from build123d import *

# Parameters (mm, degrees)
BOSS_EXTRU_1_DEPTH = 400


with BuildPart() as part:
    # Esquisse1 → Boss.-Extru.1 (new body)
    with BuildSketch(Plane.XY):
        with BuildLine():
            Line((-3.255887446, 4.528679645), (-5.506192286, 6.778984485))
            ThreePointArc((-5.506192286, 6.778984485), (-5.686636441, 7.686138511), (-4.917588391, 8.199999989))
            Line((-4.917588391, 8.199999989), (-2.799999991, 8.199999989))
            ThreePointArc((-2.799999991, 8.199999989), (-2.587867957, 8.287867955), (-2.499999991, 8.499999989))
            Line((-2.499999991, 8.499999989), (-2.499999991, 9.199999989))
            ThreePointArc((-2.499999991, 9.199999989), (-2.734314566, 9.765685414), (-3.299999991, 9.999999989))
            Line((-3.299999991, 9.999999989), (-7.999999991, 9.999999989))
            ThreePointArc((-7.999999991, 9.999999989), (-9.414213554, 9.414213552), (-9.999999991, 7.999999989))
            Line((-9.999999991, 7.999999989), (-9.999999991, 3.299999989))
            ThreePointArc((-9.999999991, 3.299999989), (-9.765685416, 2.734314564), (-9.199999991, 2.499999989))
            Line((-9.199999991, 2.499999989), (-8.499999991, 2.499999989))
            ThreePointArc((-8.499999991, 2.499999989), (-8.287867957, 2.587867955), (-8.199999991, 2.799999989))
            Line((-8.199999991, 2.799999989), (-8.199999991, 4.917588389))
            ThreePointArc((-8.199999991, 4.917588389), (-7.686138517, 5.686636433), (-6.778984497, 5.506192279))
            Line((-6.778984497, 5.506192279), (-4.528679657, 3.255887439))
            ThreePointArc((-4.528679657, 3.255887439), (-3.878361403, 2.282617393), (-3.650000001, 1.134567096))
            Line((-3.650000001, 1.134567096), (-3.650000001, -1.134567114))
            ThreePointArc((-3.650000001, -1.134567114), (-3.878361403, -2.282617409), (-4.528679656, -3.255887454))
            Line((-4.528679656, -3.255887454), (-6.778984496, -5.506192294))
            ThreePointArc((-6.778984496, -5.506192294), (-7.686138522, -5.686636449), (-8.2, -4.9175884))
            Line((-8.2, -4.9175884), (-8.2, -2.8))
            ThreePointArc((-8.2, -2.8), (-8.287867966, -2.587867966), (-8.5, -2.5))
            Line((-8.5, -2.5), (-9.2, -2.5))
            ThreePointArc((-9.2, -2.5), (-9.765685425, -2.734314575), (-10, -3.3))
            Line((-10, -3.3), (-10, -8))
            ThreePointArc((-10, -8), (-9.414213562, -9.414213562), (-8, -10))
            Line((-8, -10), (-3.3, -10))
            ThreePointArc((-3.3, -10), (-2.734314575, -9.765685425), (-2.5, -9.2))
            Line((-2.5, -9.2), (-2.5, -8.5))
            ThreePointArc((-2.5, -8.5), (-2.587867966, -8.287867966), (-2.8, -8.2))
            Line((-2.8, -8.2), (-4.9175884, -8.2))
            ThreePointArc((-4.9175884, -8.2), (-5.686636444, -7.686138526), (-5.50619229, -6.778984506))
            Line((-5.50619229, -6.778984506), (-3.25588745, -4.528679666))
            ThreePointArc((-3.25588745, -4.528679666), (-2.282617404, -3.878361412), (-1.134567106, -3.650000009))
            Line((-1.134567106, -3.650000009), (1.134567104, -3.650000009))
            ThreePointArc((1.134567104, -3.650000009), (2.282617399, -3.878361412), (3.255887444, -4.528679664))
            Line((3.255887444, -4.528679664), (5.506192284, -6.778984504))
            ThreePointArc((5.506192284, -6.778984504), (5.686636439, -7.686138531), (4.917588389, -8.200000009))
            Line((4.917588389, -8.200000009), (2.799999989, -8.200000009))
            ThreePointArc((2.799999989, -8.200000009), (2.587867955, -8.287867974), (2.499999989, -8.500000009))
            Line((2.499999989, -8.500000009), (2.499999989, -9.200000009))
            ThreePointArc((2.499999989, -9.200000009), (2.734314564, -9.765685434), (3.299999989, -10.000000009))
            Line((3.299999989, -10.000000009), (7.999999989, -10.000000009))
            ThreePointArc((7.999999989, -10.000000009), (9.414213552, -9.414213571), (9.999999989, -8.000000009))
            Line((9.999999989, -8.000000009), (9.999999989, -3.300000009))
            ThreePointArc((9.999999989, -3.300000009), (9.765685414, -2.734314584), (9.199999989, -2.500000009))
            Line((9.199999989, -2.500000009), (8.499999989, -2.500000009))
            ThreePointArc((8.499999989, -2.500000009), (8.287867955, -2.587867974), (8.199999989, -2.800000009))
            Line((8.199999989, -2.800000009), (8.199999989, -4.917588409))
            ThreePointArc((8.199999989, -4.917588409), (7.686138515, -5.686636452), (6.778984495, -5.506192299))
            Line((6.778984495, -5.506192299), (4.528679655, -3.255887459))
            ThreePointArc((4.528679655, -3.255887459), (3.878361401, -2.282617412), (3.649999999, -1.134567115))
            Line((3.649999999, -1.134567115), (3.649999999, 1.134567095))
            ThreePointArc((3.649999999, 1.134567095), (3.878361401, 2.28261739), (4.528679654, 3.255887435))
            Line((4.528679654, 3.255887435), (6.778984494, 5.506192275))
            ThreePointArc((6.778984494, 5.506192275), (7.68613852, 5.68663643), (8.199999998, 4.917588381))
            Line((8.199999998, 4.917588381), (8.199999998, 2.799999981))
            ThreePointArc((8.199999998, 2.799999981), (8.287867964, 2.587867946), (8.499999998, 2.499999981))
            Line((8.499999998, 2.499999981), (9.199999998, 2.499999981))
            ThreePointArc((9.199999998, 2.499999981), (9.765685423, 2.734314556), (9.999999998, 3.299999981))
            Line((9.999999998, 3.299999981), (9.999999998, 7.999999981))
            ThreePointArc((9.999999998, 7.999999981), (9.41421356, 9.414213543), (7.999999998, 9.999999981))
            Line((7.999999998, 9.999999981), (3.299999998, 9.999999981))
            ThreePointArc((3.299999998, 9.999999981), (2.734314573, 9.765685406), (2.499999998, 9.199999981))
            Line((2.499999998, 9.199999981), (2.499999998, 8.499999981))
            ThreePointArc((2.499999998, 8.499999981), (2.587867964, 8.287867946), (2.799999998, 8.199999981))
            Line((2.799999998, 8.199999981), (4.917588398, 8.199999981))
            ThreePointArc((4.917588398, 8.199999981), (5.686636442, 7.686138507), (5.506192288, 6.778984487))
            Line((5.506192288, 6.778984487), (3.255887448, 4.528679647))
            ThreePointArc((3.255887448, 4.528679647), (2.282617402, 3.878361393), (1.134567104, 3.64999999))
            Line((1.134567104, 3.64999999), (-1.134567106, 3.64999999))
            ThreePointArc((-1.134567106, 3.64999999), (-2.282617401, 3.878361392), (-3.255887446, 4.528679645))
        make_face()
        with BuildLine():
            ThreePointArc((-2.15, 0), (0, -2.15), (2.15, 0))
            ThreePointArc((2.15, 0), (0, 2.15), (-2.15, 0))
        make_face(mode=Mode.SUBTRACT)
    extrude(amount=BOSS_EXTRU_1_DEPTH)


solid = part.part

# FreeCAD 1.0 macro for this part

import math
import FreeCAD as App
import Part
import Sketcher
Q = App.Units.Quantity

doc = App.newDocument("Part")
params = doc.addObject("Spreadsheet::Sheet", "Params")
for row, (alias, value) in enumerate([
    ("sketch1_radius", "2 mm"),
    ("sketch1_radius2", "3 mm"),
    ("sketch1_diameter", "4.3 mm"),
    ("sketch1_radius3", "0.3 mm"),
    ("sketch1_radius4", "0.8 mm"),
    ("pad1_length", "400 mm"),
], start=1):
    params.set(f"A{row}", alias)
    params.set(f"B{row}", "=" + value)
    params.setAlias(f"B{row}", alias)

body = doc.addObject("PartDesign::Body", "Body")

# Sketch on XY plane
sketch1 = body.newObject("Sketcher::SketchObject", "Sketch")
sketch1.AttachmentSupport = (doc.getObject("XY_Plane"), [""])
sketch1.MapMode = "FlatFace"
sketch1.addGeometry([
    Part.LineSegment(App.Vector(-3.26, 4.53, 0), App.Vector(-5.51, 6.78, 0)),  # 0
    Part.ArcOfCircle(Part.Circle(App.Vector(-4.92, 7.37, 0), App.Vector(0, 0, 1), 0.83), math.radians(90), math.radians(225)),  # 1
    Part.LineSegment(App.Vector(-4.92, 8.2, 0), App.Vector(-2.8, 8.2, 0)),  # 2
    Part.ArcOfCircle(Part.Circle(App.Vector(-2.8, 8.5, 0), App.Vector(0, 0, 1), 0.3), math.radians(-90), math.radians(0)),  # 3
    Part.LineSegment(App.Vector(-2.5, 8.5, 0), App.Vector(-2.5, 9.2, 0)),  # 4
    Part.ArcOfCircle(Part.Circle(App.Vector(-3.3, 9.2, 0), App.Vector(0, 0, 1), 0.8), math.radians(0), math.radians(90)),  # 5
    Part.LineSegment(App.Vector(-3.3, 10, 0), App.Vector(-8, 10, 0)),  # 6
    Part.ArcOfCircle(Part.Circle(App.Vector(-8, 8, 0), App.Vector(0, 0, 1), 2), math.radians(90), math.radians(180)),  # 7
    Part.LineSegment(App.Vector(-10, 8, 0), App.Vector(-10, 3.3, 0)),  # 8
    Part.ArcOfCircle(Part.Circle(App.Vector(-9.2, 3.3, 0), App.Vector(0, 0, 1), 0.8), math.radians(180), math.radians(270)),  # 9
    Part.LineSegment(App.Vector(-9.2, 2.5, 0), App.Vector(-8.5, 2.5, 0)),  # 10
    Part.ArcOfCircle(Part.Circle(App.Vector(-8.5, 2.8, 0), App.Vector(0, 0, 1), 0.3), math.radians(-90), math.radians(0)),  # 11
    Part.LineSegment(App.Vector(-8.2, 2.8, 0), App.Vector(-8.2, 4.92, 0)),  # 12
    Part.ArcOfCircle(Part.Circle(App.Vector(-7.37, 4.92, 0), App.Vector(0, 0, 1), 0.83), math.radians(45), math.radians(180)),  # 13
    Part.LineSegment(App.Vector(-6.78, 5.51, 0), App.Vector(-4.53, 3.26, 0)),  # 14
    Part.ArcOfCircle(Part.Circle(App.Vector(-6.65, 1.13, 0), App.Vector(0, 0, 1), 3), math.radians(0), math.radians(45)),  # 15
    Part.LineSegment(App.Vector(-3.65, 1.13, 0), App.Vector(-3.65, -1.13, 0)),  # 16
    Part.ArcOfCircle(Part.Circle(App.Vector(-6.65, -1.13, 0), App.Vector(0, 0, 1), 3), math.radians(-45), math.radians(0)),  # 17
    Part.LineSegment(App.Vector(-4.53, -3.26, 0), App.Vector(-6.78, -5.51, 0)),  # 18
    Part.ArcOfCircle(Part.Circle(App.Vector(-7.37, -4.92, 0), App.Vector(0, 0, 1), 0.83), math.radians(180), math.radians(315)),  # 19
    Part.LineSegment(App.Vector(-8.2, -4.92, 0), App.Vector(-8.2, -2.8, 0)),  # 20
    Part.ArcOfCircle(Part.Circle(App.Vector(-8.5, -2.8, 0), App.Vector(0, 0, 1), 0.3), math.radians(0), math.radians(90)),  # 21
    Part.LineSegment(App.Vector(-8.5, -2.5, 0), App.Vector(-9.2, -2.5, 0)),  # 22
    Part.ArcOfCircle(Part.Circle(App.Vector(-9.2, -3.3, 0), App.Vector(0, 0, 1), 0.8), math.radians(90), math.radians(180)),  # 23
    Part.LineSegment(App.Vector(-10, -3.3, 0), App.Vector(-10, -8, 0)),  # 24
    Part.ArcOfCircle(Part.Circle(App.Vector(-8, -8, 0), App.Vector(0, 0, 1), 2), math.radians(-180), math.radians(-90)),  # 25
    Part.LineSegment(App.Vector(-8, -10, 0), App.Vector(-3.3, -10, 0)),  # 26
    Part.ArcOfCircle(Part.Circle(App.Vector(-3.3, -9.2, 0), App.Vector(0, 0, 1), 0.8), math.radians(-90), math.radians(0)),  # 27
    Part.LineSegment(App.Vector(-2.5, -9.2, 0), App.Vector(-2.5, -8.5, 0)),  # 28
    Part.ArcOfCircle(Part.Circle(App.Vector(-2.8, -8.5, 0), App.Vector(0, 0, 1), 0.3), math.radians(0), math.radians(90)),  # 29
    Part.LineSegment(App.Vector(-2.8, -8.2, 0), App.Vector(-4.92, -8.2, 0)),  # 30
    Part.ArcOfCircle(Part.Circle(App.Vector(-4.92, -7.37, 0), App.Vector(0, 0, 1), 0.83), math.radians(135), math.radians(270)),  # 31
    Part.LineSegment(App.Vector(-5.51, -6.78, 0), App.Vector(-3.26, -4.53, 0)),  # 32
    Part.ArcOfCircle(Part.Circle(App.Vector(-1.13, -6.65, 0), App.Vector(0, 0, 1), 3), math.radians(90), math.radians(135)),  # 33
    Part.LineSegment(App.Vector(-1.13, -3.65, 0), App.Vector(1.13, -3.65, 0)),  # 34
    Part.ArcOfCircle(Part.Circle(App.Vector(1.13, -6.65, 0), App.Vector(0, 0, 1), 3), math.radians(45), math.radians(90)),  # 35
    Part.LineSegment(App.Vector(3.26, -4.53, 0), App.Vector(5.51, -6.78, 0)),  # 36
    Part.ArcOfCircle(Part.Circle(App.Vector(4.92, -7.37, 0), App.Vector(0, 0, 1), 0.83), math.radians(-90), math.radians(45)),  # 37
    Part.LineSegment(App.Vector(4.92, -8.2, 0), App.Vector(2.8, -8.2, 0)),  # 38
    Part.ArcOfCircle(Part.Circle(App.Vector(2.8, -8.5, 0), App.Vector(0, 0, 1), 0.3), math.radians(90), math.radians(180)),  # 39
    Part.LineSegment(App.Vector(2.5, -8.5, 0), App.Vector(2.5, -9.2, 0)),  # 40
    Part.ArcOfCircle(Part.Circle(App.Vector(3.3, -9.2, 0), App.Vector(0, 0, 1), 0.8), math.radians(180), math.radians(270)),  # 41
    Part.LineSegment(App.Vector(3.3, -10, 0), App.Vector(8, -10, 0)),  # 42
    Part.ArcOfCircle(Part.Circle(App.Vector(8, -8, 0), App.Vector(0, 0, 1), 2), math.radians(-90), math.radians(0)),  # 43
    Part.LineSegment(App.Vector(10, -8, 0), App.Vector(10, -3.3, 0)),  # 44
    Part.ArcOfCircle(Part.Circle(App.Vector(9.2, -3.3, 0), App.Vector(0, 0, 1), 0.8), math.radians(0), math.radians(90)),  # 45
    Part.LineSegment(App.Vector(9.2, -2.5, 0), App.Vector(8.5, -2.5, 0)),  # 46
    Part.ArcOfCircle(Part.Circle(App.Vector(8.5, -2.8, 0), App.Vector(0, 0, 1), 0.3), math.radians(90), math.radians(180)),  # 47
    Part.LineSegment(App.Vector(8.2, -2.8, 0), App.Vector(8.2, -4.92, 0)),  # 48
    Part.ArcOfCircle(Part.Circle(App.Vector(7.37, -4.92, 0), App.Vector(0, 0, 1), 0.83), math.radians(-135), math.radians(0)),  # 49
    Part.LineSegment(App.Vector(6.78, -5.51, 0), App.Vector(4.53, -3.26, 0)),  # 50
    Part.ArcOfCircle(Part.Circle(App.Vector(6.65, -1.13, 0), App.Vector(0, 0, 1), 3), math.radians(180), math.radians(225)),  # 51
    Part.LineSegment(App.Vector(3.65, -1.13, 0), App.Vector(3.65, 1.13, 0)),  # 52
    Part.ArcOfCircle(Part.Circle(App.Vector(6.65, 1.13, 0), App.Vector(0, 0, 1), 3), math.radians(135), math.radians(180)),  # 53
    Part.LineSegment(App.Vector(4.53, 3.26, 0), App.Vector(6.78, 5.51, 0)),  # 54
    Part.ArcOfCircle(Part.Circle(App.Vector(7.37, 4.92, 0), App.Vector(0, 0, 1), 0.83), math.radians(0), math.radians(135)),  # 55
    Part.LineSegment(App.Vector(8.2, 4.92, 0), App.Vector(8.2, 2.8, 0)),  # 56
    Part.ArcOfCircle(Part.Circle(App.Vector(8.5, 2.8, 0), App.Vector(0, 0, 1), 0.3), math.radians(180), math.radians(270)),  # 57
    Part.LineSegment(App.Vector(8.5, 2.5, 0), App.Vector(9.2, 2.5, 0)),  # 58
    Part.ArcOfCircle(Part.Circle(App.Vector(9.2, 3.3, 0), App.Vector(0, 0, 1), 0.8), math.radians(-90), math.radians(0)),  # 59
    Part.LineSegment(App.Vector(10, 3.3, 0), App.Vector(10, 8, 0)),  # 60
    Part.ArcOfCircle(Part.Circle(App.Vector(8, 8, 0), App.Vector(0, 0, 1), 2), math.radians(0), math.radians(90)),  # 61
    Part.LineSegment(App.Vector(8, 10, 0), App.Vector(3.3, 10, 0)),  # 62
    Part.ArcOfCircle(Part.Circle(App.Vector(3.3, 9.2, 0), App.Vector(0, 0, 1), 0.8), math.radians(90), math.radians(180)),  # 63
    Part.LineSegment(App.Vector(2.5, 9.2, 0), App.Vector(2.5, 8.5, 0)),  # 64
    Part.ArcOfCircle(Part.Circle(App.Vector(2.8, 8.5, 0), App.Vector(0, 0, 1), 0.3), math.radians(180), math.radians(270)),  # 65
    Part.LineSegment(App.Vector(2.8, 8.2, 0), App.Vector(4.92, 8.2, 0)),  # 66
    Part.ArcOfCircle(Part.Circle(App.Vector(4.92, 7.37, 0), App.Vector(0, 0, 1), 0.83), math.radians(-45), math.radians(90)),  # 67
    Part.LineSegment(App.Vector(5.51, 6.78, 0), App.Vector(3.26, 4.53, 0)),  # 68
    Part.ArcOfCircle(Part.Circle(App.Vector(1.13, 6.65, 0), App.Vector(0, 0, 1), 3), math.radians(-90), math.radians(-45)),  # 69
    Part.LineSegment(App.Vector(1.13, 3.65, 0), App.Vector(-1.13, 3.65, 0)),  # 70
    Part.ArcOfCircle(Part.Circle(App.Vector(-1.13, 6.65, 0), App.Vector(0, 0, 1), 3), math.radians(-135), math.radians(-90)),  # 71
    Part.Circle(App.Vector(0, 0, 0), App.Vector(0, 0, 1), 2.15),  # 72
], False)
sketch1.addConstraint([
    Sketcher.Constraint("Tangent", 0, 2, 1, 2),
    Sketcher.Constraint("Tangent", 1, 1, 2, 1),
    Sketcher.Constraint("Tangent", 2, 2, 3, 1),
    Sketcher.Constraint("Tangent", 3, 2, 4, 1),
    Sketcher.Constraint("Tangent", 4, 2, 5, 1),
    Sketcher.Constraint("Tangent", 5, 2, 6, 1),
    Sketcher.Constraint("Tangent", 6, 2, 7, 1),
    Sketcher.Constraint("Tangent", 7, 2, 8, 1),
    Sketcher.Constraint("Tangent", 8, 2, 9, 1),
    Sketcher.Constraint("Tangent", 9, 2, 10, 1),
    Sketcher.Constraint("Tangent", 10, 2, 11, 1),
    Sketcher.Constraint("Tangent", 11, 2, 12, 1),
    Sketcher.Constraint("Tangent", 12, 2, 13, 2),
    Sketcher.Constraint("Tangent", 13, 1, 14, 1),
    Sketcher.Constraint("Tangent", 14, 2, 15, 2),
    Sketcher.Constraint("Tangent", 15, 1, 16, 1),
    Sketcher.Constraint("Tangent", 16, 2, 17, 2),
    Sketcher.Constraint("Tangent", 17, 1, 18, 1),
    Sketcher.Constraint("Tangent", 18, 2, 19, 2),
    Sketcher.Constraint("Tangent", 19, 1, 20, 1),
    Sketcher.Constraint("Tangent", 20, 2, 21, 1),
    Sketcher.Constraint("Tangent", 21, 2, 22, 1),
    Sketcher.Constraint("Tangent", 22, 2, 23, 1),
    Sketcher.Constraint("Tangent", 23, 2, 24, 1),
    Sketcher.Constraint("Tangent", 24, 2, 25, 1),
    Sketcher.Constraint("Tangent", 25, 2, 26, 1),
    Sketcher.Constraint("Tangent", 26, 2, 27, 1),
    Sketcher.Constraint("Tangent", 27, 2, 28, 1),
    Sketcher.Constraint("Tangent", 28, 2, 29, 1),
    Sketcher.Constraint("Tangent", 29, 2, 30, 1),
    Sketcher.Constraint("Tangent", 30, 2, 31, 2),
    Sketcher.Constraint("Tangent", 31, 1, 32, 1),
    Sketcher.Constraint("Tangent", 32, 2, 33, 2),
    Sketcher.Constraint("Tangent", 33, 1, 34, 1),
    Sketcher.Constraint("Tangent", 34, 2, 35, 2),
    Sketcher.Constraint("Tangent", 35, 1, 36, 1),
    Sketcher.Constraint("Tangent", 36, 2, 37, 2),
    Sketcher.Constraint("Tangent", 37, 1, 38, 1),
    Sketcher.Constraint("Tangent", 38, 2, 39, 1),
    Sketcher.Constraint("Tangent", 39, 2, 40, 1),
    Sketcher.Constraint("Tangent", 40, 2, 41, 1),
    Sketcher.Constraint("Tangent", 41, 2, 42, 1),
    Sketcher.Constraint("Tangent", 42, 2, 43, 1),
    Sketcher.Constraint("Tangent", 43, 2, 44, 1),
    Sketcher.Constraint("Tangent", 44, 2, 45, 1),
    Sketcher.Constraint("Tangent", 45, 2, 46, 1),
    Sketcher.Constraint("Tangent", 46, 2, 47, 1),
    Sketcher.Constraint("Tangent", 47, 2, 48, 1),
    Sketcher.Constraint("Tangent", 48, 2, 49, 2),
    Sketcher.Constraint("Tangent", 49, 1, 50, 1),
    Sketcher.Constraint("Tangent", 50, 2, 51, 2),
    Sketcher.Constraint("Tangent", 51, 1, 52, 1),
    Sketcher.Constraint("Tangent", 52, 2, 53, 2),
    Sketcher.Constraint("Tangent", 53, 1, 54, 1),
    Sketcher.Constraint("Tangent", 54, 2, 55, 2),
    Sketcher.Constraint("Tangent", 55, 1, 56, 1),
    Sketcher.Constraint("Tangent", 56, 2, 57, 1),
    Sketcher.Constraint("Tangent", 57, 2, 58, 1),
    Sketcher.Constraint("Tangent", 58, 2, 59, 1),
    Sketcher.Constraint("Tangent", 59, 2, 60, 1),
    Sketcher.Constraint("Tangent", 60, 2, 61, 1),
    Sketcher.Constraint("Tangent", 61, 2, 62, 1),
    Sketcher.Constraint("Tangent", 62, 2, 63, 1),
    Sketcher.Constraint("Tangent", 63, 2, 64, 1),
    Sketcher.Constraint("Tangent", 64, 2, 65, 1),
    Sketcher.Constraint("Tangent", 65, 2, 66, 1),
    Sketcher.Constraint("Tangent", 66, 2, 67, 2),
    Sketcher.Constraint("Tangent", 67, 1, 68, 1),
    Sketcher.Constraint("Tangent", 68, 2, 69, 2),
    Sketcher.Constraint("Tangent", 69, 1, 70, 1),
    Sketcher.Constraint("Tangent", 70, 2, 71, 2),
    Sketcher.Constraint("Tangent", 71, 1, 0, 1),
    Sketcher.Constraint("Horizontal", 2),
    Sketcher.Constraint("Vertical", 4),
    Sketcher.Constraint("Horizontal", 6),
    Sketcher.Constraint("Vertical", 8),
    Sketcher.Constraint("Horizontal", 10),
    Sketcher.Constraint("Vertical", 12),
    Sketcher.Constraint("Vertical", 16),
    Sketcher.Constraint("Vertical", 20),
    Sketcher.Constraint("Horizontal", 22),
    Sketcher.Constraint("Vertical", 24),
    Sketcher.Constraint("Horizontal", 26),
    Sketcher.Constraint("Vertical", 28),
    Sketcher.Constraint("Horizontal", 30),
    Sketcher.Constraint("Horizontal", 34),
    Sketcher.Constraint("Horizontal", 38),
    Sketcher.Constraint("Vertical", 40),
    Sketcher.Constraint("Horizontal", 42),
    Sketcher.Constraint("Vertical", 44),
    Sketcher.Constraint("Horizontal", 46),
    Sketcher.Constraint("Vertical", 48),
    Sketcher.Constraint("Vertical", 52),
    Sketcher.Constraint("Vertical", 56),
    Sketcher.Constraint("Horizontal", 58),
    Sketcher.Constraint("Vertical", 60),
    Sketcher.Constraint("Horizontal", 62),
    Sketcher.Constraint("Vertical", 64),
    Sketcher.Constraint("Horizontal", 66),
    Sketcher.Constraint("Horizontal", 70),
    Sketcher.Constraint("Coincident", 72, 3, -1, 1),
    Sketcher.Constraint("Equal", 5, 9),
    Sketcher.Constraint("Equal", 3, 11),
    Sketcher.Constraint("Equal", 1, 13),
    Sketcher.Constraint("Equal", 15, 17),
    Sketcher.Constraint("Equal", 13, 19),
    Sketcher.Constraint("Equal", 11, 21),
    Sketcher.Constraint("Equal", 9, 23),
    Sketcher.Constraint("Equal", 7, 25),
    Sketcher.Constraint("Equal", 23, 27),
    Sketcher.Constraint("Equal", 21, 29),
    Sketcher.Constraint("Equal", 19, 31),
    Sketcher.Constraint("Equal", 17, 33),
    Sketcher.Constraint("Equal", 33, 35),
    Sketcher.Constraint("Equal", 31, 37),
    Sketcher.Constraint("Equal", 29, 39),
    Sketcher.Constraint("Equal", 27, 41),
    Sketcher.Constraint("Equal", 25, 43),
    Sketcher.Constraint("Equal", 41, 45),
    Sketcher.Constraint("Equal", 39, 47),
    Sketcher.Constraint("Equal", 37, 49),
    Sketcher.Constraint("Equal", 35, 51),
    Sketcher.Constraint("Equal", 51, 53),
    Sketcher.Constraint("Equal", 49, 55),
    Sketcher.Constraint("Equal", 47, 57),
    Sketcher.Constraint("Equal", 45, 59),
    Sketcher.Constraint("Equal", 43, 61),
    Sketcher.Constraint("Equal", 59, 63),
    Sketcher.Constraint("Equal", 57, 65),
    Sketcher.Constraint("Equal", 55, 67),
    Sketcher.Constraint("Equal", 53, 69),
    Sketcher.Constraint("Equal", 69, 71),
    Sketcher.Constraint("Symmetric", 1, 3, 37, 3, -1, 1),
    Sketcher.Constraint("Symmetric", 5, 3, 41, 3, -1, 1),
    Sketcher.Constraint("Symmetric", 9, 3, 45, 3, -1, 1),
    Sketcher.Constraint("Symmetric", 13, 3, 49, 3, -1, 1),
    Sketcher.Constraint("Symmetric", 15, 3, 51, 3, -1, 1),
    Sketcher.Constraint("Symmetric", 19, 3, 55, 3, -1, 1),
    Sketcher.Constraint("Symmetric", 23, 3, 59, 3, -1, 1),
    Sketcher.Constraint("Symmetric", 27, 3, 63, 3, -1, 1),
    Sketcher.Constraint("Symmetric", 31, 3, 67, 3, -1, 1),
    Sketcher.Constraint("Symmetric", 33, 3, 69, 3, -1, 1),
    Sketcher.Constraint("Symmetric", 31, 3, 37, 3, -2),
    Sketcher.Constraint("Symmetric", 27, 3, 41, 3, -2),
    Sketcher.Constraint("Symmetric", 23, 3, 45, 3, -2),
    Sketcher.Constraint("Symmetric", 19, 3, 49, 3, -2),
    Sketcher.Constraint("Parallel", 0, 14),
    Sketcher.Constraint("Perpendicular", 14, 18),
    Sketcher.Constraint("Parallel", 18, 32),
    Sketcher.Constraint("Perpendicular", 32, 36),
    Sketcher.Constraint("Perpendicular", 50, 54),
    Sketcher.Constraint("Horizontal", 17, 3, 51, 3),
    Sketcher.Constraint("Equal", 58, 4),
    Sketcher.Constraint("Equal", 62, 8),
    Sketcher.Constraint("Equal", 66, 12),
    Sketcher.Constraint("Equal", 70, 16),
    Sketcher.Constraint("Equal", 0, 14),
    Sketcher.Constraint("Radius", 7, Q("2 mm")),
    Sketcher.Constraint("Radius", 15, Q("3 mm")),
    Sketcher.Constraint("Diameter", 72, Q("4.3 mm")),
    Sketcher.Constraint("Radius", 3, Q("0.3 mm")),
    Sketcher.Constraint("Radius", 5, Q("0.8 mm")),
    Sketcher.Constraint("DistanceX", 6, 2, 6, 1, Q("4.7 mm")),
    Sketcher.Constraint("DistanceX", 10, 1, 10, 2, Q("0.7 mm")),
    Sketcher.Constraint("DistanceX", 7, 3, -1, 1, Q("8 mm")),
    Sketcher.Constraint("DistanceX", 15, 3, -1, 1, Q("6.65 mm")),
    Sketcher.Constraint("Radius", 1, Q("0.832412 mm")),
    Sketcher.Constraint("DistanceX", 2, 1, 2, 2, Q("2.117588 mm")),
])
sketch1.setExpression("Constraints[157]", "Params.sketch1_radius")
sketch1.setExpression("Constraints[158]", "Params.sketch1_radius2")
sketch1.setExpression("Constraints[159]", "Params.sketch1_diameter")
sketch1.setExpression("Constraints[160]", "Params.sketch1_radius3")
sketch1.setExpression("Constraints[161]", "Params.sketch1_radius4")
pad1 = body.newObject("PartDesign::Pad", "Pad")
pad1.Profile = sketch1
pad1.setExpression("Length", "Params.pad1_length")

doc.recompute()
